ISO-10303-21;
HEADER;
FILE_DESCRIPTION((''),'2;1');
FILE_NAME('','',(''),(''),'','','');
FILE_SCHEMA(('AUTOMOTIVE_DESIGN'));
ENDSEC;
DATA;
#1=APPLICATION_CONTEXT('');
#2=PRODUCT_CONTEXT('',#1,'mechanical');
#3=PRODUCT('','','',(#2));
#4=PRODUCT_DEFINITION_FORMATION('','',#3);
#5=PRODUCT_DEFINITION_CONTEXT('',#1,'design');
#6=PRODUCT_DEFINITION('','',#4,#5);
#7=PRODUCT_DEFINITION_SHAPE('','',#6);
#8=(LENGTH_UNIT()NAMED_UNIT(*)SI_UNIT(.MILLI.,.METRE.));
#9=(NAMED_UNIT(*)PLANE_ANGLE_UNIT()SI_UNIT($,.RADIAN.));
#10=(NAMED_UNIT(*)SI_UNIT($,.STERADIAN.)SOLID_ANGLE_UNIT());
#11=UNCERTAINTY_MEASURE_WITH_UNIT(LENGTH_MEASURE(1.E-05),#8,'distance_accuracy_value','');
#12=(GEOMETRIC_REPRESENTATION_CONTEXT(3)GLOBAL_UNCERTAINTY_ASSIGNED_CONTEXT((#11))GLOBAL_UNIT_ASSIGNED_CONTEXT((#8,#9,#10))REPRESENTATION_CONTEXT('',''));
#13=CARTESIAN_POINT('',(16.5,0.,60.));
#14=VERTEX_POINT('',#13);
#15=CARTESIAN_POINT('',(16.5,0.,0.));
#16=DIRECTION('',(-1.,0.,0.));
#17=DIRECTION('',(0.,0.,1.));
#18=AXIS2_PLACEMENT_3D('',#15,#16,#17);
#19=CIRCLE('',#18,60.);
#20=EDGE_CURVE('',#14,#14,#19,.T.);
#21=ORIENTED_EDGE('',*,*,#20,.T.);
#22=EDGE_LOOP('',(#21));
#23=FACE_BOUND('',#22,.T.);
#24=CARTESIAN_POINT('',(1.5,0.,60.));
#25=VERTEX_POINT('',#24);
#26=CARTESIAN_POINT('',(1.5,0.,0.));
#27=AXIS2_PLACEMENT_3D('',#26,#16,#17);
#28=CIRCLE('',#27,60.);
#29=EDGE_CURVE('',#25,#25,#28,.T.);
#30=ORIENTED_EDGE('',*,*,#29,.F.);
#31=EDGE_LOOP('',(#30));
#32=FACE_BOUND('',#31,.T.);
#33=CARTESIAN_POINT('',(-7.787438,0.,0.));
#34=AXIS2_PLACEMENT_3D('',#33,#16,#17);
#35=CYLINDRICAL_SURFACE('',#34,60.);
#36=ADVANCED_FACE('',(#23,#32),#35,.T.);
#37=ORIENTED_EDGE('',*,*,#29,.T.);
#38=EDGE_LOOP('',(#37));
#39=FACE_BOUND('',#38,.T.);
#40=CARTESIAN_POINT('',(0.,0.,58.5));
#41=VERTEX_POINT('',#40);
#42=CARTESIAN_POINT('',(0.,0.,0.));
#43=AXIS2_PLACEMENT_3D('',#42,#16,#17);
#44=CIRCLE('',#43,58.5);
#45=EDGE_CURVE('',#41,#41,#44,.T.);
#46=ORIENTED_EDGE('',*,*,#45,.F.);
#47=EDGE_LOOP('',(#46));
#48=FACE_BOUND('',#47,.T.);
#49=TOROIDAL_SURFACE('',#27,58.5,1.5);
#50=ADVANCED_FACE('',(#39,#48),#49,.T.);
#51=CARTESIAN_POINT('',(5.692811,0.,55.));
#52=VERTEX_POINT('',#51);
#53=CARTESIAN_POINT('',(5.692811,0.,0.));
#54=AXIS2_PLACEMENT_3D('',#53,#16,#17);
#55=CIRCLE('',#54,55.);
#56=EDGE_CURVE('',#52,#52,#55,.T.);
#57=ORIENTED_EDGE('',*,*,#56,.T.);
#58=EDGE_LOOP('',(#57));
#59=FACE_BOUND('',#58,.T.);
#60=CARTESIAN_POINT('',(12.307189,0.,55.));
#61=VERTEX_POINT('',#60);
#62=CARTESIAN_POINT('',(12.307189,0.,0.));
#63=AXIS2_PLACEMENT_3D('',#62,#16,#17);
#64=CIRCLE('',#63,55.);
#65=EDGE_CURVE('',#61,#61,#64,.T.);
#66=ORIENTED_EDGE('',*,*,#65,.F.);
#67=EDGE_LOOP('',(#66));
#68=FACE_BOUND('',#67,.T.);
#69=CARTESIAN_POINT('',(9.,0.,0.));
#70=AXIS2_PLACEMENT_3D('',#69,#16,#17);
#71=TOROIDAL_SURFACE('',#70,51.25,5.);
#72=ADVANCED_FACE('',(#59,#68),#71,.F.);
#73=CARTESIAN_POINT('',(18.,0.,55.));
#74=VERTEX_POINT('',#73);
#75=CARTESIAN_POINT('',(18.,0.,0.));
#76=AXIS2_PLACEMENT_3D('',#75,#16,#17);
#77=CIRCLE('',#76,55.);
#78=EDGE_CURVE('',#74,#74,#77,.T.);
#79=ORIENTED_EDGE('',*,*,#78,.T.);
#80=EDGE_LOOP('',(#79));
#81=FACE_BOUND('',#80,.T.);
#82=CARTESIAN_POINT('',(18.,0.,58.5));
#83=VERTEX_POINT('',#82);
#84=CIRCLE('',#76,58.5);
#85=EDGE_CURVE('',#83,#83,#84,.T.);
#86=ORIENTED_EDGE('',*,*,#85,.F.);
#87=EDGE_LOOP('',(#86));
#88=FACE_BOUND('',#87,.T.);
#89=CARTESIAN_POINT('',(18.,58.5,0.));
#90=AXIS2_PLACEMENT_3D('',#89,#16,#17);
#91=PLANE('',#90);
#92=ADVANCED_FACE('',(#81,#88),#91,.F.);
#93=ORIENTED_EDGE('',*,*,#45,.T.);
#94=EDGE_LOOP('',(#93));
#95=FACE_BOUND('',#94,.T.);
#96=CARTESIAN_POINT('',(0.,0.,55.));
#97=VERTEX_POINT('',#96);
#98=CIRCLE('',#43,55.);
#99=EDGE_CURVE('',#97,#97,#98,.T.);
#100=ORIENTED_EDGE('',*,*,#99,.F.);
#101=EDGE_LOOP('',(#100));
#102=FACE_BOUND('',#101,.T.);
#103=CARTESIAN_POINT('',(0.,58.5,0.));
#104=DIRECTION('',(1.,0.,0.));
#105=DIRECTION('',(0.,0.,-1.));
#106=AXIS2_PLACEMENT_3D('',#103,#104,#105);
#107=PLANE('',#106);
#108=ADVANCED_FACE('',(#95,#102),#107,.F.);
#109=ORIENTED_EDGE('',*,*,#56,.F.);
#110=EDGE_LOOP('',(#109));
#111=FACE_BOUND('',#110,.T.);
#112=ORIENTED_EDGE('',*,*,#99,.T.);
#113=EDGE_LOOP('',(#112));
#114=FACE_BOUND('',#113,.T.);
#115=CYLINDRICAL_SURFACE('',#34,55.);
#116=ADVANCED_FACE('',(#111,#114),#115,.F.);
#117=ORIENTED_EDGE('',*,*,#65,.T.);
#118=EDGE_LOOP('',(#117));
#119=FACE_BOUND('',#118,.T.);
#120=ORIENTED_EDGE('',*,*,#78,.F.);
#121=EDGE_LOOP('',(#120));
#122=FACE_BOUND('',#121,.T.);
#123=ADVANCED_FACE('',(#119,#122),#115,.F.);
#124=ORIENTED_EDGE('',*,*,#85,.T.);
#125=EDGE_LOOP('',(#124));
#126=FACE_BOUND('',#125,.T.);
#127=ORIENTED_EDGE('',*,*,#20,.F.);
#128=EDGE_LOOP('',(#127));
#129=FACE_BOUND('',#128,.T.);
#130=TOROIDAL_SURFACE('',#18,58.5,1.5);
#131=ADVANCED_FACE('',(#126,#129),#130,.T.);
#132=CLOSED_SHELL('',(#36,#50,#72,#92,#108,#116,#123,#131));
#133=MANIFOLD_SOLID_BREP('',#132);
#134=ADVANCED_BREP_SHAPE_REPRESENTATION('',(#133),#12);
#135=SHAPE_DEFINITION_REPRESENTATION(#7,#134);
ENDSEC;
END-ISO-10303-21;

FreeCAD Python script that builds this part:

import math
import FreeCAD as App
import Part
import Sketcher

V = App.Vector
Q = App.Units.Quantity

doc = App.newDocument("Part")
params = doc.addObject("Spreadsheet::Sheet", "Params")
for row, (alias, value) in enumerate([
    ("sketch1_radius", "5 mm"),
    ("sketch1_radius2", "1.5 mm"),
    ("sketch1_width", "15 mm"),
    ("sketch1_height", "3.5 mm"),
    ("revolution_angle", "360 deg"),
], start=1):
    params.set(f"A{row}", alias)
    params.set(f"B{row}", "=" + value)
    params.setAlias(f"B{row}", alias)

body = doc.addObject("PartDesign::Body", "Body")

# Sketch on XY plane
sketch1 = body.newObject("Sketcher::SketchObject", "Sketch")
sketch1.AttachmentSupport = (doc.getObject("XY_Plane"), [""])
sketch1.MapMode = "FlatFace"
sketch1.addGeometry([
    Part.LineSegment(V(16.5, 60, 0), V(1.5, 60, 0)),  # 0
    Part.ArcOfCircle(Part.Circle(V(1.5, 58.5, 0), V(0, 0, 1), 1.5), math.radians(90), math.radians(180)),  # 1
    Part.LineSegment(V(0, 58.5, 0), V(0, 55, 0)),  # 2
    Part.LineSegment(V(0, 55, 0), V(5.7, 55, 0)),  # 3
    Part.ArcOfCircle(Part.Circle(V(9, 51.2, 0), V(0, 0, 1), 5), math.radians(49), math.radians(131)),  # 4
    Part.LineSegment(V(12.3, 55, 0), V(18, 55, 0)),  # 5
    Part.LineSegment(V(18, 55, 0), V(18, 58.5, 0)),  # 6
    Part.ArcOfCircle(Part.Circle(V(16.5, 58.5, 0), V(0, 0, 1), 1.5), math.radians(0), math.radians(90)),  # 7
], False)
sketch1.addConstraint([
    Sketcher.Constraint("Tangent", 0, 2, 1, 1),
    Sketcher.Constraint("Tangent", 1, 2, 2, 1),
    Sketcher.Constraint("Coincident", 2, 2, 3, 1),
    Sketcher.Constraint("Coincident", 3, 2, 4, 2),
    Sketcher.Constraint("Coincident", 4, 1, 5, 1),
    Sketcher.Constraint("Coincident", 5, 2, 6, 1),
    Sketcher.Constraint("Tangent", 6, 2, 7, 1),
    Sketcher.Constraint("Tangent", 7, 2, 0, 1),
    Sketcher.Constraint("Horizontal", 0),
    Sketcher.Constraint("Vertical", 2),
    Sketcher.Constraint("Horizontal", 3),
    Sketcher.Constraint("Horizontal", 5),
    Sketcher.Constraint("Vertical", 6),
    Sketcher.Constraint("Equal", 1, 7),
    Sketcher.Constraint("PointOnObject", 1, 2, -2),
    Sketcher.Constraint("Horizontal", 3, 2, 4, 1),
    Sketcher.Constraint("Equal", 3, 5),
    Sketcher.Constraint("Radius", 4, Q("5 mm")),
    Sketcher.Constraint("Radius", 1, Q("1.5 mm")),
    Sketcher.Constraint("DistanceX", 0, 2, 0, 1, Q("15 mm")),
    Sketcher.Constraint("DistanceY", 2, 2, 2, 1, Q("3.5 mm")),
    Sketcher.Constraint("DistanceY", -1, 1, 0, 2, Q("60 mm")),
    Sketcher.Constraint("DistanceY", -1, 1, 4, 3, Q("51.25 mm")),
])
sketch1.setExpression("Constraints[17]", "Params.sketch1_radius")
sketch1.setExpression("Constraints[18]", "Params.sketch1_radius2")
sketch1.setExpression("Constraints[19]", "Params.sketch1_width")
sketch1.setExpression("Constraints[20]", "Params.sketch1_height")
revolution = body.newObject("PartDesign::Revolution", "Revolution")
revolution.Profile = sketch1
revolution.ReferenceAxis = (sketch1, ["H_Axis"])
revolution.setExpression("Angle", "Params.revolution_angle")

doc.recompute()
